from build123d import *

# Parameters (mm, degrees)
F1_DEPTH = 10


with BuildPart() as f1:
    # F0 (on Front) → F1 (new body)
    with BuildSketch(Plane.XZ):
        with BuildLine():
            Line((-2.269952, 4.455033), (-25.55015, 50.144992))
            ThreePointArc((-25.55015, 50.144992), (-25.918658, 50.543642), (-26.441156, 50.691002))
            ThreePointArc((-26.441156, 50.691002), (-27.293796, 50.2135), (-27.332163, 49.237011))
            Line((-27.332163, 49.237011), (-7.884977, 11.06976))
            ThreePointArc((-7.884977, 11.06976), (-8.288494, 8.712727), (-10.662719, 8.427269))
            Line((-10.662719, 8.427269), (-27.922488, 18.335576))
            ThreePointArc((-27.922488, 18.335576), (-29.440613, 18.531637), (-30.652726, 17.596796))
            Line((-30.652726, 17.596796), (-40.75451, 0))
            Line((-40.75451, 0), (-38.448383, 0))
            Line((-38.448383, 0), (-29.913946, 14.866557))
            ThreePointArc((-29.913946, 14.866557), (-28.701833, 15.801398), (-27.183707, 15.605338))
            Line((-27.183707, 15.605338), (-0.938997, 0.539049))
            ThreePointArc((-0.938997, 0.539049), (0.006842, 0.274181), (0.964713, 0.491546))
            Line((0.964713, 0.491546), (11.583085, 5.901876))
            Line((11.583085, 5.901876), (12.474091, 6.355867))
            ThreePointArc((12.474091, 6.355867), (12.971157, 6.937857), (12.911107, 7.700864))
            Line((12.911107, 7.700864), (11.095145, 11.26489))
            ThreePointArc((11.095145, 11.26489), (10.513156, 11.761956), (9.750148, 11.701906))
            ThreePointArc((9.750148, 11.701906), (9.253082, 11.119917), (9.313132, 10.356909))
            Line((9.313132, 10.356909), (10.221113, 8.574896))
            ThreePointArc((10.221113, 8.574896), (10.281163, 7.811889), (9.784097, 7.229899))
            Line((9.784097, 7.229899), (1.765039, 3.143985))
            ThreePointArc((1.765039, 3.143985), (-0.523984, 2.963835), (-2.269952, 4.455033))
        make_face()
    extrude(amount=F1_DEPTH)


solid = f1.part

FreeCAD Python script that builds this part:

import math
import FreeCAD as App
import Part
import Sketcher
from FreeCAD import Vector
Q = App.Units.Quantity

doc = App.newDocument("Part")
body = doc.addObject("PartDesign::Body", "Body")

sketch1 = doc.addObject("Sketcher::SketchObject", "Sketch")
body.addObject(sketch1)
sketch1.AttachmentSupport = (doc.XZ_Plane, [""])
sketch1.MapMode = "FlatFace"
sketch1.addGeometry([
    Part.LineSegment(Vector(-2.3, 4.5, 0), Vector(-25.6, 50.1, 0)),
    Part.ArcOfCircle(Part.Circle(Vector(-26.4, 49.7, 0), Vector(0, 0, 1), 1), math.radians(27), math.radians(90)),
    Part.ArcOfCircle(Part.Circle(Vector(-26.4, 49.7, 0), Vector(0, 0, 1), 1), math.radians(90), math.radians(207)),
    Part.LineSegment(Vector(-27.3, 49.2, 0), Vector(-7.9, 11.1, 0)),
    Part.ArcOfCircle(Part.Circle(Vector(-9.7, 10.2, 0), Vector(0, 0, 1), 2), math.radians(-120), math.radians(27)),
    Part.LineSegment(Vector(-10.7, 8.4, 0), Vector(-27.9, 18.3, 0)),
    Part.ArcOfCircle(Part.Circle(Vector(-28.9, 16.6, 0), Vector(0, 0, 1), 2), math.radians(60), math.radians(150)),
    Part.LineSegment(Vector(-30.7, 17.6, 0), Vector(-40.8, 0, 0)),
    Part.LineSegment(Vector(-40.8, 0, 0), Vector(-38.4, 0, 0)),
    Part.LineSegment(Vector(-38.4, 0, 0), Vector(-29.9, 14.9, 0)),
    Part.ArcOfCircle(Part.Circle(Vector(-28.2, 13.9, 0), Vector(0, 0, 1), 2), math.radians(60), math.radians(150)),
    Part.LineSegment(Vector(-27.2, 15.6, 0), Vector(-0.9, 0.5, 0)),
    Part.ArcOfCircle(Part.Circle(Vector(0.1, 2.3, 0), Vector(0, 0, 1), 2), math.radians(-120), math.radians(-63)),
    Part.LineSegment(Vector(1, 0.5, 0), Vector(11.6, 5.9, 0)),
    Part.LineSegment(Vector(11.6, 5.9, 0), Vector(12.5, 6.4, 0)),
    Part.ArcOfCircle(Part.Circle(Vector(12, 7.2, 0), Vector(0, 0, 1), 1), math.radians(-63), math.radians(27)),
    Part.LineSegment(Vector(12.9, 7.7, 0), Vector(11.1, 11.3, 0)),
    Part.ArcOfCircle(Part.Circle(Vector(10.2, 10.8, 0), Vector(0, 0, 1), 1), math.radians(27), math.radians(117)),
    Part.ArcOfCircle(Part.Circle(Vector(10.2, 10.8, 0), Vector(0, 0, 1), 1), math.radians(117), math.radians(207)),
    Part.LineSegment(Vector(9.3, 10.4, 0), Vector(10.2, 8.6, 0)),
    Part.ArcOfCircle(Part.Circle(Vector(9.3, 8.1, 0), Vector(0, 0, 1), 1), math.radians(-63), math.radians(27)),
    Part.LineSegment(Vector(9.8, 7.2, 0), Vector(1.8, 3.1, 0)),
    Part.ArcOfCircle(Part.Circle(Vector(0.4, 5.8, 0), Vector(0, 0, 1), 3), math.radians(-153), math.radians(-63)),
], False)
sketch1.addConstraint([
    Sketcher.Constraint("Tangent", 0, 2, 1, 1),
    Sketcher.Constraint("Coincident", 1, 2, 2, 1),
    Sketcher.Constraint("Tangent", 2, 2, 3, 1),
    Sketcher.Constraint("Tangent", 3, 2, 4, 2),
    Sketcher.Constraint("Tangent", 4, 1, 5, 1),
    Sketcher.Constraint("Tangent", 5, 2, 6, 1),
    Sketcher.Constraint("Tangent", 6, 2, 7, 1),
    Sketcher.Constraint("Coincident", 7, 2, 8, 1),
    Sketcher.Constraint("Coincident", 8, 2, 9, 1),
    Sketcher.Constraint("Tangent", 9, 2, 10, 2),
    Sketcher.Constraint("Tangent", 10, 1, 11, 1),
    Sketcher.Constraint("Tangent", 11, 2, 12, 1),
    Sketcher.Constraint("Tangent", 12, 2, 13, 1),
    Sketcher.Constraint("Coincident", 13, 2, 14, 1),
    Sketcher.Constraint("Tangent", 14, 2, 15, 1),
    Sketcher.Constraint("Tangent", 15, 2, 16, 1),
    Sketcher.Constraint("Tangent", 16, 2, 17, 1),
    Sketcher.Constraint("Tangent", 17, 2, 18, 1),
    Sketcher.Constraint("Tangent", 18, 2, 19, 1),
    Sketcher.Constraint("Tangent", 19, 2, 20, 2),
    Sketcher.Constraint("Tangent", 20, 1, 21, 1),
    Sketcher.Constraint("Tangent", 21, 2, 22, 2),
    Sketcher.Constraint("Tangent", 22, 1, 0, 1),
    Sketcher.Constraint("Horizontal", 8),
    Sketcher.Constraint("Coincident", 2, 3, 1, 3),
    Sketcher.Constraint("Equal", 4, 6),
    Sketcher.Constraint("Equal", 4, 10),
    Sketcher.Constraint("Equal", 6, 12),
    Sketcher.Constraint("Equal", 2, 15),
    Sketcher.Constraint("Equal", 15, 17),
    Sketcher.Constraint("Equal", 17, 18),
    Sketcher.Constraint("Equal", 18, 20),
    Sketcher.Constraint("PointOnObject", 7, 2, -1),
    Sketcher.Constraint("Parallel", 0, 3),
    Sketcher.Constraint("Perpendicular", 5, 7),
    Sketcher.Constraint("Parallel", 7, 9),
    Sketcher.Constraint("Perpendicular", 9, 11),
    Sketcher.Constraint("Perpendicular", 3, 13),
    Sketcher.Constraint("Parallel", 13, 14),
    Sketcher.Constraint("Perpendicular", 14, 16),
    Sketcher.Constraint("Parallel", 16, 19),
    Sketcher.Constraint("Perpendicular", 19, 21),
    Sketcher.Constraint("Vertical", 2, 3, 1, 2),
    Sketcher.Constraint("Radius", 1, 1.0),
    Sketcher.Constraint("Radius", 4, 2.0),
    Sketcher.Constraint("Radius", 22, 3.0),
    Sketcher.Constraint("Angle", 0, Q("117.000001 deg")),
    Sketcher.Constraint("Distance", 14, 1.0),
    Sketcher.Constraint("Distance", 16, 4.0),
    Sketcher.Constraint("Distance", 19, 2.0),
    Sketcher.Constraint("Distance", 21, 8.999999),
    Sketcher.Constraint("DistanceY", -1, 1, 1, 3, 49.691002),
    Sketcher.Constraint("DistanceY", 20, 3, 17, 2, 3.581),
    Sketcher.Constraint("DistanceX", -1, 1, 15, 3, 12.0201),
    Sketcher.Constraint("DistanceY", -1, 1, 17, 3, 10.8109),
    Sketcher.Constraint("DistanceX", 5, 2, 4, 3, 18.255498),
    Sketcher.Constraint("Distance", 11, 30.261822),
    Sketcher.Constraint("DistanceX", 8, 1, 8, 2, 2.306127),
    Sketcher.Constraint("DistanceX", 4, 3, -1, 1, 9.66699),
    Sketcher.Constraint("DistanceX", -1, 1, 12, 3, 0.056732),
])
pad1 = doc.addObject("PartDesign::Pad", "Pad")
body.addObject(pad1)
pad1.Profile = sketch1
pad1.Length = 10

doc.recompute()
